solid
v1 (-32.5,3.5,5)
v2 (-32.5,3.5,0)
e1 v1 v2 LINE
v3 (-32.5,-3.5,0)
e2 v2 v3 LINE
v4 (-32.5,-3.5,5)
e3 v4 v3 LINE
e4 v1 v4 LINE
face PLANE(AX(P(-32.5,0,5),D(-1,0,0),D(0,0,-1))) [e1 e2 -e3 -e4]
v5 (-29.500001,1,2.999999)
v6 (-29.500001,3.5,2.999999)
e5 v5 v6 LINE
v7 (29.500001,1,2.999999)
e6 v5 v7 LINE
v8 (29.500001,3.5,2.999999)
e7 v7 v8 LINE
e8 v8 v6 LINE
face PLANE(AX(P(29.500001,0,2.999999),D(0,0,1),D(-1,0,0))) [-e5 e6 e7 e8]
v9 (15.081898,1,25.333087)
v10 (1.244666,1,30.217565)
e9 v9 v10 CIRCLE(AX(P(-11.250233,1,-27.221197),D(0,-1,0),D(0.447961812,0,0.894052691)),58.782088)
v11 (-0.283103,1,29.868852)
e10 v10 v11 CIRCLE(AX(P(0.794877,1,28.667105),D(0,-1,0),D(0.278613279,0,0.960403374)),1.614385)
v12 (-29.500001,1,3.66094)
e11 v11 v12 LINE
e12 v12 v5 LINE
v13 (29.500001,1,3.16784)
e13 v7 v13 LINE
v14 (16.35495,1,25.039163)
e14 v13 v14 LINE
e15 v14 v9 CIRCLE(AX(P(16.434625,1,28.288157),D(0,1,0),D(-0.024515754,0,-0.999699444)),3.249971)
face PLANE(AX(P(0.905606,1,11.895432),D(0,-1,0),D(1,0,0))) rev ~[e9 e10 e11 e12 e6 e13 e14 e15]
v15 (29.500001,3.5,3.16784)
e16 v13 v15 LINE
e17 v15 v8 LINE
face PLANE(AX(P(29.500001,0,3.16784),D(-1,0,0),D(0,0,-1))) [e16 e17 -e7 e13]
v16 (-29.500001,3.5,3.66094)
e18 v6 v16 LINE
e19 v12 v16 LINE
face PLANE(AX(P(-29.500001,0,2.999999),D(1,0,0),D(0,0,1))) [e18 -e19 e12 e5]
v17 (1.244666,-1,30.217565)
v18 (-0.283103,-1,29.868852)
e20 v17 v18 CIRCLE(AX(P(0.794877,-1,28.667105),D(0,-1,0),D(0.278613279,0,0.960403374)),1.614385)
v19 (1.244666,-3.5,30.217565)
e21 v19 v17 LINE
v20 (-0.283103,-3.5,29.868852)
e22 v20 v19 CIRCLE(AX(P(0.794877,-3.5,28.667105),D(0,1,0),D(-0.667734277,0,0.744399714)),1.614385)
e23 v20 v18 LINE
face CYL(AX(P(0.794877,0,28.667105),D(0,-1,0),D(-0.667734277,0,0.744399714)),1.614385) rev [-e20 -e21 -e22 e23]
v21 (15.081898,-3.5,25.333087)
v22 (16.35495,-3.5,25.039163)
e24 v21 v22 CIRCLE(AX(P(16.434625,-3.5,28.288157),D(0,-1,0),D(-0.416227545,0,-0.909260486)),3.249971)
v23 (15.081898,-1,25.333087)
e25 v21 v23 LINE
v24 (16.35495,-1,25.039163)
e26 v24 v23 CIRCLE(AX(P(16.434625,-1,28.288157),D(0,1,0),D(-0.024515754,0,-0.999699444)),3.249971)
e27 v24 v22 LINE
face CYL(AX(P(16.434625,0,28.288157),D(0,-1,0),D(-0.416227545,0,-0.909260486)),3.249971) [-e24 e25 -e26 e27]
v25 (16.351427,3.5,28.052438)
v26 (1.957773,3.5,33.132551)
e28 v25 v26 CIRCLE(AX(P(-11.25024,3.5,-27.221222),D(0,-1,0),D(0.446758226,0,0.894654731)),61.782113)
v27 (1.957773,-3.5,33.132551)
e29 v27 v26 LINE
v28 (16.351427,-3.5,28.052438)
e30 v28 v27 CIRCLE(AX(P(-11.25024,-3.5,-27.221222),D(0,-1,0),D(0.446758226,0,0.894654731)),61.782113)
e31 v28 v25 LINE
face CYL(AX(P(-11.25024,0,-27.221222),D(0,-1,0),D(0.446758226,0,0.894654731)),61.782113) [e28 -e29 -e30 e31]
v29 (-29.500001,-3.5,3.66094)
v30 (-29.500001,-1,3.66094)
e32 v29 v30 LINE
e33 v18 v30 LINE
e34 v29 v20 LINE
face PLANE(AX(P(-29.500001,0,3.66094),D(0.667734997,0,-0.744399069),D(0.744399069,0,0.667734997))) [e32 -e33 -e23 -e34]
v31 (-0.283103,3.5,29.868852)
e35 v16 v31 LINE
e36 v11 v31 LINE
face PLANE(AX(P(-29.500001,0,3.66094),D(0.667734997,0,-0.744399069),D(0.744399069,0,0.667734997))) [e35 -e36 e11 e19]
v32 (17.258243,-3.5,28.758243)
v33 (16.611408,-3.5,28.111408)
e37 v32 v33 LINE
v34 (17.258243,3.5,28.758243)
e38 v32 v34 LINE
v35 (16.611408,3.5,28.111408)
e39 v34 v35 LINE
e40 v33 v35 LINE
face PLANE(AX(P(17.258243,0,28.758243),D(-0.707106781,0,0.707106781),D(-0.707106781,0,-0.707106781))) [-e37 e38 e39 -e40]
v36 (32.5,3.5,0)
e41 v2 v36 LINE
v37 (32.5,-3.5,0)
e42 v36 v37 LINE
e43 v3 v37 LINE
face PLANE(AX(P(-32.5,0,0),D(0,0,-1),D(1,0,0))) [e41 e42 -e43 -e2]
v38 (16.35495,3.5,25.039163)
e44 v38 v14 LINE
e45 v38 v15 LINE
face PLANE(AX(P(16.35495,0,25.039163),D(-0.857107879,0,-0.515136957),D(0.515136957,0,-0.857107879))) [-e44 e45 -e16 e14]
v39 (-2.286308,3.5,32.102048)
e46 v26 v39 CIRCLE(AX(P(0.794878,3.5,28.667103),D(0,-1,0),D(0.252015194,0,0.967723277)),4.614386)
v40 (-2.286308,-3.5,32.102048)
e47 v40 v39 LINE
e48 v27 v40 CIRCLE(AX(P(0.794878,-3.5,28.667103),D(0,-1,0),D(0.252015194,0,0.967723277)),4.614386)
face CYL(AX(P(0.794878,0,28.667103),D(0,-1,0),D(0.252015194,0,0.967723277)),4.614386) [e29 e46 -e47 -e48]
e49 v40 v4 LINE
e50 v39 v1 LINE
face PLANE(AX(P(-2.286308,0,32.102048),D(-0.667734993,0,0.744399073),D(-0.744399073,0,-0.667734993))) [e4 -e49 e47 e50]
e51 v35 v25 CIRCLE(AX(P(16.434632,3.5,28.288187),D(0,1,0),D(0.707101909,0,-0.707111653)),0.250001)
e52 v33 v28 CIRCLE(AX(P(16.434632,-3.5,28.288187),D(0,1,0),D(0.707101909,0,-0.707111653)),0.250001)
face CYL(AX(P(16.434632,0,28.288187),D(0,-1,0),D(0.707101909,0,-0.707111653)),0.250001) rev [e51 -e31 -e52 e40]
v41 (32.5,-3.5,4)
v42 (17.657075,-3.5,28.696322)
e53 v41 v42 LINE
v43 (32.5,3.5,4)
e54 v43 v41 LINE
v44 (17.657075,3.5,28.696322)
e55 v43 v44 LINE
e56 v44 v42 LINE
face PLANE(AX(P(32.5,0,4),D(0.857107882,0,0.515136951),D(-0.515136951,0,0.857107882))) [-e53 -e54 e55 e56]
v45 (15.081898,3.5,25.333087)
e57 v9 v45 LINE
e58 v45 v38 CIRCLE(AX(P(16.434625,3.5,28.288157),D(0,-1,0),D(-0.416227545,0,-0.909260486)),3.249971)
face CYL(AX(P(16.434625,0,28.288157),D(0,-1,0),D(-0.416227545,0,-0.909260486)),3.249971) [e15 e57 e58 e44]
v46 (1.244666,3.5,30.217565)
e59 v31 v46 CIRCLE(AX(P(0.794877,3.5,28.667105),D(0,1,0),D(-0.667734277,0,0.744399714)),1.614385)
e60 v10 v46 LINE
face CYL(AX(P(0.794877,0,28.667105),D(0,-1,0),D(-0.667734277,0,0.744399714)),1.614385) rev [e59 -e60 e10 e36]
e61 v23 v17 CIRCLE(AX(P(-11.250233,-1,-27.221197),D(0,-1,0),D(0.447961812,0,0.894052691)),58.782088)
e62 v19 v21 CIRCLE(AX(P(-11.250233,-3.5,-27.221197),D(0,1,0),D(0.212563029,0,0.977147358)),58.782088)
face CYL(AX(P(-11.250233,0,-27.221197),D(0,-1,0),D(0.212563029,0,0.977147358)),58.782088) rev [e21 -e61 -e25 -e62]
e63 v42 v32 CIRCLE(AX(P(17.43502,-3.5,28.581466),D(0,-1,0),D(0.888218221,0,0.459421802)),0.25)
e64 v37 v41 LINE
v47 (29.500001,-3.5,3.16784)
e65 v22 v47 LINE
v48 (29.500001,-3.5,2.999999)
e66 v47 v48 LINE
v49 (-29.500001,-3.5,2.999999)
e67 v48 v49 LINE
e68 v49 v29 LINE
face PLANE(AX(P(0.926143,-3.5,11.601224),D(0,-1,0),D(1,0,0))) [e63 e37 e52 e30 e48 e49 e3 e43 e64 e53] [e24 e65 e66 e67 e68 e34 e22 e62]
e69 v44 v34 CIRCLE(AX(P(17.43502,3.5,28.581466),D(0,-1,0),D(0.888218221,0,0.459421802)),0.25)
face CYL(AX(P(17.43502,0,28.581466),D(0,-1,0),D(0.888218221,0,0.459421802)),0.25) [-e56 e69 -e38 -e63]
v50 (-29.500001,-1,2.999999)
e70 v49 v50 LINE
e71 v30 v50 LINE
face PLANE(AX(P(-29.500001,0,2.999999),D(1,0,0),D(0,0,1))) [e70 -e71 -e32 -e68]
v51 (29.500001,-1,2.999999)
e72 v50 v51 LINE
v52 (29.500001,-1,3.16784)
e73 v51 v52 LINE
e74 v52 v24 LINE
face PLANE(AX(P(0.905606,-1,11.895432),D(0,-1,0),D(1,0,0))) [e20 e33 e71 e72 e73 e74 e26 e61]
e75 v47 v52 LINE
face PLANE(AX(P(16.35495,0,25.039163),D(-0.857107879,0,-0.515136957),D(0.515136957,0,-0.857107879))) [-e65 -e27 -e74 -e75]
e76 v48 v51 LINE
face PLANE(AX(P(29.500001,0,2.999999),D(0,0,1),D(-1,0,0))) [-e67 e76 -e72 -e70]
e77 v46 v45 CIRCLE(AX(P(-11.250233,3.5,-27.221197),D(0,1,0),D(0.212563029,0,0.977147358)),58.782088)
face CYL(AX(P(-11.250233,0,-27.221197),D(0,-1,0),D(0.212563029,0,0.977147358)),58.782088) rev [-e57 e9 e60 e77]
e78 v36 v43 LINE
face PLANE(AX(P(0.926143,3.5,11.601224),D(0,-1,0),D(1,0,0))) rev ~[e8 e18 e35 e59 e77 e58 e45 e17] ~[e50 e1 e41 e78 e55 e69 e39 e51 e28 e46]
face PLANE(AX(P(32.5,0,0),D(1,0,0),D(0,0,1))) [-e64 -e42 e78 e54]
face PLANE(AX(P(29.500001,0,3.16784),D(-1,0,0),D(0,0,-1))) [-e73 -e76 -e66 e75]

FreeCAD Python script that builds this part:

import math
import FreeCAD as App
import Part
import Sketcher
Q = App.Units.Quantity

doc = App.newDocument("Part")
params = doc.addObject("Spreadsheet::Sheet", "Params")
for row, (alias, value) in enumerate([
    ("sketch1_width", "65 mm"),
    ("sketch1_height", "5 mm"),
    ("sketch1_height2", "4 mm"),
    ("sketch1_radius", "0.25 mm"),
    ("sketch1_radius2", "0.250001 mm"),
    ("pad1_length", "7 mm"),
    ("pad2_length", "2 mm"),
], start=1):
    params.set(f"A{row}", alias)
    params.set(f"B{row}", "=" + value)
    params.setAlias(f"B{row}", alias)

body = doc.addObject("PartDesign::Body", "Body")

sketch1 = body.newObject("Sketcher::SketchObject", "Sketch")
sketch1.AttachmentSupport = (doc.getObject("XZ_Plane"), [""])
sketch1.MapMode = "FlatFace"
sketch1.addGeometry(Part.LineSegment(App.Vector(-2.286308, 32.102048, 0), App.Vector(-32.5, 5, 0)), False)
sketch1.addGeometry(Part.LineSegment(App.Vector(-32.5, 5, 0), App.Vector(-32.5, 0, 0)), False)
sketch1.addGeometry(Part.LineSegment(App.Vector(-32.5, 0, 0), App.Vector(32.5, 0, 0)), False)
sketch1.addGeometry(Part.LineSegment(App.Vector(32.5, 0, 0), App.Vector(32.5, 4, 0)), False)
sketch1.addGeometry(Part.LineSegment(App.Vector(32.5, 4, 0), App.Vector(17.657075, 28.696322, 0)), False)
sketch1.addGeometry(Part.ArcOfCircle(Part.Circle(App.Vector(17.43502, 28.581466, 0), App.Vector(0, 0, 1), 0.25), math.radians(27.349804), math.radians(135.000101)), False)
sketch1.addGeometry(Part.LineSegment(App.Vector(17.258243, 28.758243, 0), App.Vector(16.611408, 28.111408, 0)), False)
sketch1.addGeometry(Part.ArcOfCircle(Part.Circle(App.Vector(16.434632, 28.288187, 0), App.Vector(0, 0, 1), 0.250001), math.radians(-109.439944), math.radians(-45.000395)), False)
sketch1.addGeometry(Part.ArcOfCircle(Part.Circle(App.Vector(-11.25024, -27.221222, 0), App.Vector(0, 0, 1), 61.782113), math.radians(63.464115), math.radians(77.655816)), False)
sketch1.addGeometry(Part.ArcOfCircle(Part.Circle(App.Vector(0.794878, 28.667103, 0), App.Vector(0, 0, 1), 4.614386), math.radians(75.403207), math.radians(131.892471)), False)
sketch1.addGeometry(Part.ArcOfCircle(Part.Circle(App.Vector(16.434625, 28.288157, 0), App.Vector(0, 0, 1), 3.249971), math.radians(-114.596645), math.radians(-91.40479)), False)
sketch1.addGeometry(Part.LineSegment(App.Vector(16.35495, 25.039163, 0), App.Vector(29.500001, 3.16784, 0)), False)
sketch1.addGeometry(Part.LineSegment(App.Vector(29.500001, 3.16784, 0), App.Vector(29.500001, 2.999999, 0)), False)
sketch1.addGeometry(Part.LineSegment(App.Vector(29.500001, 2.999999, 0), App.Vector(-29.500001, 2.999999, 0)), False)
sketch1.addGeometry(Part.LineSegment(App.Vector(-29.500001, 2.999999, 0), App.Vector(-29.500001, 3.66094, 0)), False)
sketch1.addGeometry(Part.LineSegment(App.Vector(-29.500001, 3.66094, 0), App.Vector(-0.283103, 29.868852, 0)), False)
sketch1.addGeometry(Part.ArcOfCircle(Part.Circle(App.Vector(0.794877, 28.667105, 0), App.Vector(0, 0, 1), 1.614385), math.radians(73.822542), math.radians(131.892435)), False)
sketch1.addGeometry(Part.ArcOfCircle(Part.Circle(App.Vector(-11.250233, -27.221197, 0), App.Vector(0, 0, 1), 58.782088), math.radians(63.387009), math.radians(77.727405)), False)
sketch1.addConstraint(Sketcher.Constraint("Coincident", 0, 2, 1, 1))
sketch1.addConstraint(Sketcher.Constraint("Coincident", 1, 2, 2, 1))
sketch1.addConstraint(Sketcher.Constraint("Coincident", 2, 2, 3, 1))
sketch1.addConstraint(Sketcher.Constraint("Coincident", 3, 2, 4, 1))
sketch1.addConstraint(Sketcher.Constraint("Coincident", 4, 2, 5, 1))
sketch1.addConstraint(Sketcher.Constraint("Coincident", 5, 2, 6, 1))
sketch1.addConstraint(Sketcher.Constraint("Coincident", 6, 2, 7, 2))
sketch1.addConstraint(Sketcher.Constraint("Coincident", 7, 1, 8, 1))
sketch1.addConstraint(Sketcher.Constraint("Coincident", 8, 2, 9, 1))
sketch1.addConstraint(Sketcher.Constraint("Coincident", 9, 2, 0, 1))
sketch1.addConstraint(Sketcher.Constraint("Coincident", 10, 2, 11, 1))
sketch1.addConstraint(Sketcher.Constraint("Coincident", 11, 2, 12, 1))
sketch1.addConstraint(Sketcher.Constraint("Coincident", 12, 2, 13, 1))
sketch1.addConstraint(Sketcher.Constraint("Coincident", 13, 2, 14, 1))
sketch1.addConstraint(Sketcher.Constraint("Coincident", 14, 2, 15, 1))
sketch1.addConstraint(Sketcher.Constraint("Coincident", 15, 2, 16, 2))
sketch1.addConstraint(Sketcher.Constraint("Coincident", 16, 1, 17, 2))
sketch1.addConstraint(Sketcher.Constraint("Coincident", 17, 1, 10, 1))
sketch1.addConstraint(Sketcher.Constraint("Vertical", 1))
sketch1.addConstraint(Sketcher.Constraint("Horizontal", 2))
sketch1.addConstraint(Sketcher.Constraint("Vertical", 3))
sketch1.addConstraint(Sketcher.Constraint("Vertical", 12))
sketch1.addConstraint(Sketcher.Constraint("Horizontal", 13))
sketch1.addConstraint(Sketcher.Constraint("Vertical", 14))
sketch1.addConstraint(Sketcher.Constraint("Coincident", 16, 3, 9, 3))
sketch1.addConstraint(Sketcher.Constraint("PointOnObject", 1, 2, -1))
sketch1.addConstraint(Sketcher.Constraint("DistanceX", 2, 1, 2, 2, Q("65 mm")))
sketch1.addConstraint(Sketcher.Constraint("DistanceY", 1, 2, 1, 1, Q("5 mm")))
sketch1.addConstraint(Sketcher.Constraint("DistanceY", 3, 1, 3, 2, Q("4 mm")))
sketch1.addConstraint(Sketcher.Constraint("Radius", 5, Q("0.25 mm")))
sketch1.addConstraint(Sketcher.Constraint("Radius", 7, Q("0.250001 mm")))
sketch1.addConstraint(Sketcher.Constraint("DistanceY", -1, 1, 12, 2, Q("2.999999 mm")))
sketch1.addConstraint(Sketcher.Constraint("DistanceX", 11, 2, 3, 2, Q("2.999999 mm")))
sketch1.addConstraint(Sketcher.Constraint("DistanceX", 0, 2, 13, 2, Q("2.999999 mm")))
sketch1.addConstraint(Sketcher.Constraint("DistanceX", 0, 2, -1, 1, Q("32.5 mm")))
sketch1.addConstraint(Sketcher.Constraint("Radius", 10, Q("3.249971 mm")))
sketch1.addConstraint(Sketcher.Constraint("Radius", 17, Q("58.782088 mm")))
sketch1.addConstraint(Sketcher.Constraint("Radius", 8, Q("61.782113 mm")))
sketch1.addConstraint(Sketcher.Constraint("Radius", 9, Q("4.614386 mm")))
sketch1.addConstraint(Sketcher.Constraint("Radius", 16, Q("1.614385 mm")))
sketch1.addConstraint(Sketcher.Constraint("DistanceY", 12, 2, 12, 1, Q("0.167841 mm")))
sketch1.addConstraint(Sketcher.Constraint("DistanceY", 14, 1, 14, 2, Q("0.660941 mm")))
sketch1.addConstraint(Sketcher.Constraint("DistanceX", -1, 1, 17, 1, Q("15.081898 mm")))
sketch1.addConstraint(Sketcher.Constraint("DistanceY", 17, 3, 9, 3, Q("55.8883 mm")))
sketch1.addConstraint(Sketcher.Constraint("DistanceX", 16, 3, 4, 2, Q("16.862198 mm")))
sketch1.addConstraint(Sketcher.Constraint("DistanceX", 7, 1, 10, 3, Q("0.083198 mm")))
sketch1.addConstraint(Sketcher.Constraint("DistanceY", 15, 2, 8, 2, Q("3.263699 mm")))
sketch1.addConstraint(Sketcher.Constraint("DistanceY", 17, 1, 7, 3, Q("2.9551 mm")))
sketch1.addConstraint(Sketcher.Constraint("Distance", 0, Q("40.58803 mm")))
sketch1.addConstraint(Sketcher.Constraint("Distance", 4, Q("28.813551 mm")))
sketch1.addConstraint(Sketcher.Constraint("Distance", 15, Q("39.248972 mm")))
sketch1.addConstraint(Sketcher.Constraint("DistanceX", -1, 1, 5, 3, Q("17.43502 mm")))
sketch1.addConstraint(Sketcher.Constraint("DistanceX", -1, 1, 7, 3, Q("16.434632 mm")))
sketch1.addConstraint(Sketcher.Constraint("DistanceX", 8, 3, -1, 1, Q("11.25024 mm")))
sketch1.addConstraint(Sketcher.Constraint("DistanceY", -1, 1, 4, 2, Q("28.696322 mm")))
sketch1.addConstraint(Sketcher.Constraint("DistanceX", -1, 1, 6, 2, Q("16.611408 mm")))
sketch1.addConstraint(Sketcher.Constraint("DistanceY", -1, 1, 6, 2, Q("28.111408 mm")))
sketch1.addConstraint(Sketcher.Constraint("DistanceX", 9, 2, -1, 1, Q("2.286308 mm")))
sketch1.addConstraint(Sketcher.Constraint("DistanceX", -1, 1, 10, 2, Q("16.35495 mm")))
sketch1.addConstraint(Sketcher.Constraint("DistanceY", 4, 2, 5, 2, Q("0.061921 mm")))
sketch1.setExpression("Constraints[26]", "Params.sketch1_width")
sketch1.setExpression("Constraints[27]", "Params.sketch1_height")
sketch1.setExpression("Constraints[28]", "Params.sketch1_height2")
sketch1.setExpression("Constraints[29]", "Params.sketch1_radius")
sketch1.setExpression("Constraints[30]", "Params.sketch1_radius2")
pad1 = body.newObject("PartDesign::Pad", "Pad")
pad1.Profile = sketch1
pad1.setExpression("Length", "Params.pad1_length")
pad1.Midplane = True

sketch2 = body.newObject("Sketcher::SketchObject", "Sketch001")
sketch2.AttachmentSupport = (doc.getObject("XZ_Plane"), [""])
sketch2.MapMode = "FlatFace"
sketch2.addGeometry(Part.LineSegment(App.Vector(29.5, 3, 0), App.Vector(29.5, 3.17, 0)), False)
sketch2.addGeometry(Part.LineSegment(App.Vector(29.5, 3.17, 0), App.Vector(16.35, 25.04, 0)), False)
sketch2.addGeometry(Part.ArcOfCircle(Part.Circle(App.Vector(16.43, 28.29, 0), App.Vector(0, 0, 1), 3.25), math.radians(-115), math.radians(-91)), False)
sketch2.addGeometry(Part.ArcOfCircle(Part.Circle(App.Vector(-11.25, -27.22, 0), App.Vector(0, 0, 1), 58.78), math.radians(63.39), math.radians(77.73)), False)
sketch2.addGeometry(Part.ArcOfCircle(Part.Circle(App.Vector(0.79, 28.67, 0), App.Vector(0, 0, 1), 1.61), math.radians(74), math.radians(132)), False)
sketch2.addGeometry(Part.LineSegment(App.Vector(-0.28, 29.87, 0), App.Vector(-29.5, 3.66, 0)), False)
sketch2.addGeometry(Part.LineSegment(App.Vector(-29.5, 3.66, 0), App.Vector(-29.5, 3, 0)), False)
sketch2.addGeometry(Part.LineSegment(App.Vector(-29.5, 3, 0), App.Vector(29.5, 3, 0)), False)
sketch2.addConstraint(Sketcher.Constraint("Coincident", 0, 2, 1, 1))
sketch2.addConstraint(Sketcher.Constraint("Coincident", 1, 2, 2, 2))
sketch2.addConstraint(Sketcher.Constraint("Coincident", 2, 1, 3, 1))
sketch2.addConstraint(Sketcher.Constraint("Coincident", 3, 2, 4, 1))
sketch2.addConstraint(Sketcher.Constraint("Tangent", 4, 2, 5, 1))
sketch2.addConstraint(Sketcher.Constraint("Coincident", 5, 2, 6, 1))
sketch2.addConstraint(Sketcher.Constraint("Coincident", 6, 2, 7, 1))
sketch2.addConstraint(Sketcher.Constraint("Coincident", 7, 2, 0, 1))
sketch2.addConstraint(Sketcher.Constraint("Vertical", 0))
sketch2.addConstraint(Sketcher.Constraint("Vertical", 6))
sketch2.addConstraint(Sketcher.Constraint("Horizontal", 7))
sketch2.addConstraint(Sketcher.Constraint("DistanceY", -1, 1, 6, 2, Q("2.999999 mm")))
sketch2.addConstraint(Sketcher.Constraint("DistanceX", -1, 1, 0, 2, Q("29.500001 mm")))
sketch2.addConstraint(Sketcher.Constraint("DistanceX", 5, 2, -1, 1, Q("29.500001 mm")))
sketch2.addConstraint(Sketcher.Constraint("Radius", 2, Q("3.249971 mm")))
sketch2.addConstraint(Sketcher.Constraint("Radius", 3, Q("58.782088 mm")))
sketch2.addConstraint(Sketcher.Constraint("Radius", 4, Q("1.614385 mm")))
sketch2.addConstraint(Sketcher.Constraint("DistanceX", 4, 2, 2, 1, Q("15.365001 mm")))
sketch2.addConstraint(Sketcher.Constraint("DistanceY", 0, 1, 0, 2, Q("0.167841 mm")))
sketch2.addConstraint(Sketcher.Constraint("DistanceY", 6, 2, 6, 1, Q("0.660941 mm")))
sketch2.addConstraint(Sketcher.Constraint("DistanceX", -1, 1, 2, 1, Q("15.081898 mm")))
sketch2.addConstraint(Sketcher.Constraint("DistanceY", 3, 3, 4, 3, Q("55.888302 mm")))
sketch2.addConstraint(Sketcher.Constraint("DistanceY", 1, 2, 3, 2, Q("5.178402 mm")))
sketch2.addConstraint(Sketcher.Constraint("Distance", 5, Q("39.248972 mm")))
sketch2.addConstraint(Sketcher.Constraint("DistanceX", -1, 1, 1, 2, Q("16.35495 mm")))
sketch2.addConstraint(Sketcher.Constraint("DistanceX", 3, 3, 2, 3, Q("27.684858 mm")))
pad2 = body.newObject("PartDesign::Pad", "Pad001")
pad2.Profile = sketch2
pad2.setExpression("Length", "Params.pad2_length")
pad2.Midplane = True

doc.recompute()
